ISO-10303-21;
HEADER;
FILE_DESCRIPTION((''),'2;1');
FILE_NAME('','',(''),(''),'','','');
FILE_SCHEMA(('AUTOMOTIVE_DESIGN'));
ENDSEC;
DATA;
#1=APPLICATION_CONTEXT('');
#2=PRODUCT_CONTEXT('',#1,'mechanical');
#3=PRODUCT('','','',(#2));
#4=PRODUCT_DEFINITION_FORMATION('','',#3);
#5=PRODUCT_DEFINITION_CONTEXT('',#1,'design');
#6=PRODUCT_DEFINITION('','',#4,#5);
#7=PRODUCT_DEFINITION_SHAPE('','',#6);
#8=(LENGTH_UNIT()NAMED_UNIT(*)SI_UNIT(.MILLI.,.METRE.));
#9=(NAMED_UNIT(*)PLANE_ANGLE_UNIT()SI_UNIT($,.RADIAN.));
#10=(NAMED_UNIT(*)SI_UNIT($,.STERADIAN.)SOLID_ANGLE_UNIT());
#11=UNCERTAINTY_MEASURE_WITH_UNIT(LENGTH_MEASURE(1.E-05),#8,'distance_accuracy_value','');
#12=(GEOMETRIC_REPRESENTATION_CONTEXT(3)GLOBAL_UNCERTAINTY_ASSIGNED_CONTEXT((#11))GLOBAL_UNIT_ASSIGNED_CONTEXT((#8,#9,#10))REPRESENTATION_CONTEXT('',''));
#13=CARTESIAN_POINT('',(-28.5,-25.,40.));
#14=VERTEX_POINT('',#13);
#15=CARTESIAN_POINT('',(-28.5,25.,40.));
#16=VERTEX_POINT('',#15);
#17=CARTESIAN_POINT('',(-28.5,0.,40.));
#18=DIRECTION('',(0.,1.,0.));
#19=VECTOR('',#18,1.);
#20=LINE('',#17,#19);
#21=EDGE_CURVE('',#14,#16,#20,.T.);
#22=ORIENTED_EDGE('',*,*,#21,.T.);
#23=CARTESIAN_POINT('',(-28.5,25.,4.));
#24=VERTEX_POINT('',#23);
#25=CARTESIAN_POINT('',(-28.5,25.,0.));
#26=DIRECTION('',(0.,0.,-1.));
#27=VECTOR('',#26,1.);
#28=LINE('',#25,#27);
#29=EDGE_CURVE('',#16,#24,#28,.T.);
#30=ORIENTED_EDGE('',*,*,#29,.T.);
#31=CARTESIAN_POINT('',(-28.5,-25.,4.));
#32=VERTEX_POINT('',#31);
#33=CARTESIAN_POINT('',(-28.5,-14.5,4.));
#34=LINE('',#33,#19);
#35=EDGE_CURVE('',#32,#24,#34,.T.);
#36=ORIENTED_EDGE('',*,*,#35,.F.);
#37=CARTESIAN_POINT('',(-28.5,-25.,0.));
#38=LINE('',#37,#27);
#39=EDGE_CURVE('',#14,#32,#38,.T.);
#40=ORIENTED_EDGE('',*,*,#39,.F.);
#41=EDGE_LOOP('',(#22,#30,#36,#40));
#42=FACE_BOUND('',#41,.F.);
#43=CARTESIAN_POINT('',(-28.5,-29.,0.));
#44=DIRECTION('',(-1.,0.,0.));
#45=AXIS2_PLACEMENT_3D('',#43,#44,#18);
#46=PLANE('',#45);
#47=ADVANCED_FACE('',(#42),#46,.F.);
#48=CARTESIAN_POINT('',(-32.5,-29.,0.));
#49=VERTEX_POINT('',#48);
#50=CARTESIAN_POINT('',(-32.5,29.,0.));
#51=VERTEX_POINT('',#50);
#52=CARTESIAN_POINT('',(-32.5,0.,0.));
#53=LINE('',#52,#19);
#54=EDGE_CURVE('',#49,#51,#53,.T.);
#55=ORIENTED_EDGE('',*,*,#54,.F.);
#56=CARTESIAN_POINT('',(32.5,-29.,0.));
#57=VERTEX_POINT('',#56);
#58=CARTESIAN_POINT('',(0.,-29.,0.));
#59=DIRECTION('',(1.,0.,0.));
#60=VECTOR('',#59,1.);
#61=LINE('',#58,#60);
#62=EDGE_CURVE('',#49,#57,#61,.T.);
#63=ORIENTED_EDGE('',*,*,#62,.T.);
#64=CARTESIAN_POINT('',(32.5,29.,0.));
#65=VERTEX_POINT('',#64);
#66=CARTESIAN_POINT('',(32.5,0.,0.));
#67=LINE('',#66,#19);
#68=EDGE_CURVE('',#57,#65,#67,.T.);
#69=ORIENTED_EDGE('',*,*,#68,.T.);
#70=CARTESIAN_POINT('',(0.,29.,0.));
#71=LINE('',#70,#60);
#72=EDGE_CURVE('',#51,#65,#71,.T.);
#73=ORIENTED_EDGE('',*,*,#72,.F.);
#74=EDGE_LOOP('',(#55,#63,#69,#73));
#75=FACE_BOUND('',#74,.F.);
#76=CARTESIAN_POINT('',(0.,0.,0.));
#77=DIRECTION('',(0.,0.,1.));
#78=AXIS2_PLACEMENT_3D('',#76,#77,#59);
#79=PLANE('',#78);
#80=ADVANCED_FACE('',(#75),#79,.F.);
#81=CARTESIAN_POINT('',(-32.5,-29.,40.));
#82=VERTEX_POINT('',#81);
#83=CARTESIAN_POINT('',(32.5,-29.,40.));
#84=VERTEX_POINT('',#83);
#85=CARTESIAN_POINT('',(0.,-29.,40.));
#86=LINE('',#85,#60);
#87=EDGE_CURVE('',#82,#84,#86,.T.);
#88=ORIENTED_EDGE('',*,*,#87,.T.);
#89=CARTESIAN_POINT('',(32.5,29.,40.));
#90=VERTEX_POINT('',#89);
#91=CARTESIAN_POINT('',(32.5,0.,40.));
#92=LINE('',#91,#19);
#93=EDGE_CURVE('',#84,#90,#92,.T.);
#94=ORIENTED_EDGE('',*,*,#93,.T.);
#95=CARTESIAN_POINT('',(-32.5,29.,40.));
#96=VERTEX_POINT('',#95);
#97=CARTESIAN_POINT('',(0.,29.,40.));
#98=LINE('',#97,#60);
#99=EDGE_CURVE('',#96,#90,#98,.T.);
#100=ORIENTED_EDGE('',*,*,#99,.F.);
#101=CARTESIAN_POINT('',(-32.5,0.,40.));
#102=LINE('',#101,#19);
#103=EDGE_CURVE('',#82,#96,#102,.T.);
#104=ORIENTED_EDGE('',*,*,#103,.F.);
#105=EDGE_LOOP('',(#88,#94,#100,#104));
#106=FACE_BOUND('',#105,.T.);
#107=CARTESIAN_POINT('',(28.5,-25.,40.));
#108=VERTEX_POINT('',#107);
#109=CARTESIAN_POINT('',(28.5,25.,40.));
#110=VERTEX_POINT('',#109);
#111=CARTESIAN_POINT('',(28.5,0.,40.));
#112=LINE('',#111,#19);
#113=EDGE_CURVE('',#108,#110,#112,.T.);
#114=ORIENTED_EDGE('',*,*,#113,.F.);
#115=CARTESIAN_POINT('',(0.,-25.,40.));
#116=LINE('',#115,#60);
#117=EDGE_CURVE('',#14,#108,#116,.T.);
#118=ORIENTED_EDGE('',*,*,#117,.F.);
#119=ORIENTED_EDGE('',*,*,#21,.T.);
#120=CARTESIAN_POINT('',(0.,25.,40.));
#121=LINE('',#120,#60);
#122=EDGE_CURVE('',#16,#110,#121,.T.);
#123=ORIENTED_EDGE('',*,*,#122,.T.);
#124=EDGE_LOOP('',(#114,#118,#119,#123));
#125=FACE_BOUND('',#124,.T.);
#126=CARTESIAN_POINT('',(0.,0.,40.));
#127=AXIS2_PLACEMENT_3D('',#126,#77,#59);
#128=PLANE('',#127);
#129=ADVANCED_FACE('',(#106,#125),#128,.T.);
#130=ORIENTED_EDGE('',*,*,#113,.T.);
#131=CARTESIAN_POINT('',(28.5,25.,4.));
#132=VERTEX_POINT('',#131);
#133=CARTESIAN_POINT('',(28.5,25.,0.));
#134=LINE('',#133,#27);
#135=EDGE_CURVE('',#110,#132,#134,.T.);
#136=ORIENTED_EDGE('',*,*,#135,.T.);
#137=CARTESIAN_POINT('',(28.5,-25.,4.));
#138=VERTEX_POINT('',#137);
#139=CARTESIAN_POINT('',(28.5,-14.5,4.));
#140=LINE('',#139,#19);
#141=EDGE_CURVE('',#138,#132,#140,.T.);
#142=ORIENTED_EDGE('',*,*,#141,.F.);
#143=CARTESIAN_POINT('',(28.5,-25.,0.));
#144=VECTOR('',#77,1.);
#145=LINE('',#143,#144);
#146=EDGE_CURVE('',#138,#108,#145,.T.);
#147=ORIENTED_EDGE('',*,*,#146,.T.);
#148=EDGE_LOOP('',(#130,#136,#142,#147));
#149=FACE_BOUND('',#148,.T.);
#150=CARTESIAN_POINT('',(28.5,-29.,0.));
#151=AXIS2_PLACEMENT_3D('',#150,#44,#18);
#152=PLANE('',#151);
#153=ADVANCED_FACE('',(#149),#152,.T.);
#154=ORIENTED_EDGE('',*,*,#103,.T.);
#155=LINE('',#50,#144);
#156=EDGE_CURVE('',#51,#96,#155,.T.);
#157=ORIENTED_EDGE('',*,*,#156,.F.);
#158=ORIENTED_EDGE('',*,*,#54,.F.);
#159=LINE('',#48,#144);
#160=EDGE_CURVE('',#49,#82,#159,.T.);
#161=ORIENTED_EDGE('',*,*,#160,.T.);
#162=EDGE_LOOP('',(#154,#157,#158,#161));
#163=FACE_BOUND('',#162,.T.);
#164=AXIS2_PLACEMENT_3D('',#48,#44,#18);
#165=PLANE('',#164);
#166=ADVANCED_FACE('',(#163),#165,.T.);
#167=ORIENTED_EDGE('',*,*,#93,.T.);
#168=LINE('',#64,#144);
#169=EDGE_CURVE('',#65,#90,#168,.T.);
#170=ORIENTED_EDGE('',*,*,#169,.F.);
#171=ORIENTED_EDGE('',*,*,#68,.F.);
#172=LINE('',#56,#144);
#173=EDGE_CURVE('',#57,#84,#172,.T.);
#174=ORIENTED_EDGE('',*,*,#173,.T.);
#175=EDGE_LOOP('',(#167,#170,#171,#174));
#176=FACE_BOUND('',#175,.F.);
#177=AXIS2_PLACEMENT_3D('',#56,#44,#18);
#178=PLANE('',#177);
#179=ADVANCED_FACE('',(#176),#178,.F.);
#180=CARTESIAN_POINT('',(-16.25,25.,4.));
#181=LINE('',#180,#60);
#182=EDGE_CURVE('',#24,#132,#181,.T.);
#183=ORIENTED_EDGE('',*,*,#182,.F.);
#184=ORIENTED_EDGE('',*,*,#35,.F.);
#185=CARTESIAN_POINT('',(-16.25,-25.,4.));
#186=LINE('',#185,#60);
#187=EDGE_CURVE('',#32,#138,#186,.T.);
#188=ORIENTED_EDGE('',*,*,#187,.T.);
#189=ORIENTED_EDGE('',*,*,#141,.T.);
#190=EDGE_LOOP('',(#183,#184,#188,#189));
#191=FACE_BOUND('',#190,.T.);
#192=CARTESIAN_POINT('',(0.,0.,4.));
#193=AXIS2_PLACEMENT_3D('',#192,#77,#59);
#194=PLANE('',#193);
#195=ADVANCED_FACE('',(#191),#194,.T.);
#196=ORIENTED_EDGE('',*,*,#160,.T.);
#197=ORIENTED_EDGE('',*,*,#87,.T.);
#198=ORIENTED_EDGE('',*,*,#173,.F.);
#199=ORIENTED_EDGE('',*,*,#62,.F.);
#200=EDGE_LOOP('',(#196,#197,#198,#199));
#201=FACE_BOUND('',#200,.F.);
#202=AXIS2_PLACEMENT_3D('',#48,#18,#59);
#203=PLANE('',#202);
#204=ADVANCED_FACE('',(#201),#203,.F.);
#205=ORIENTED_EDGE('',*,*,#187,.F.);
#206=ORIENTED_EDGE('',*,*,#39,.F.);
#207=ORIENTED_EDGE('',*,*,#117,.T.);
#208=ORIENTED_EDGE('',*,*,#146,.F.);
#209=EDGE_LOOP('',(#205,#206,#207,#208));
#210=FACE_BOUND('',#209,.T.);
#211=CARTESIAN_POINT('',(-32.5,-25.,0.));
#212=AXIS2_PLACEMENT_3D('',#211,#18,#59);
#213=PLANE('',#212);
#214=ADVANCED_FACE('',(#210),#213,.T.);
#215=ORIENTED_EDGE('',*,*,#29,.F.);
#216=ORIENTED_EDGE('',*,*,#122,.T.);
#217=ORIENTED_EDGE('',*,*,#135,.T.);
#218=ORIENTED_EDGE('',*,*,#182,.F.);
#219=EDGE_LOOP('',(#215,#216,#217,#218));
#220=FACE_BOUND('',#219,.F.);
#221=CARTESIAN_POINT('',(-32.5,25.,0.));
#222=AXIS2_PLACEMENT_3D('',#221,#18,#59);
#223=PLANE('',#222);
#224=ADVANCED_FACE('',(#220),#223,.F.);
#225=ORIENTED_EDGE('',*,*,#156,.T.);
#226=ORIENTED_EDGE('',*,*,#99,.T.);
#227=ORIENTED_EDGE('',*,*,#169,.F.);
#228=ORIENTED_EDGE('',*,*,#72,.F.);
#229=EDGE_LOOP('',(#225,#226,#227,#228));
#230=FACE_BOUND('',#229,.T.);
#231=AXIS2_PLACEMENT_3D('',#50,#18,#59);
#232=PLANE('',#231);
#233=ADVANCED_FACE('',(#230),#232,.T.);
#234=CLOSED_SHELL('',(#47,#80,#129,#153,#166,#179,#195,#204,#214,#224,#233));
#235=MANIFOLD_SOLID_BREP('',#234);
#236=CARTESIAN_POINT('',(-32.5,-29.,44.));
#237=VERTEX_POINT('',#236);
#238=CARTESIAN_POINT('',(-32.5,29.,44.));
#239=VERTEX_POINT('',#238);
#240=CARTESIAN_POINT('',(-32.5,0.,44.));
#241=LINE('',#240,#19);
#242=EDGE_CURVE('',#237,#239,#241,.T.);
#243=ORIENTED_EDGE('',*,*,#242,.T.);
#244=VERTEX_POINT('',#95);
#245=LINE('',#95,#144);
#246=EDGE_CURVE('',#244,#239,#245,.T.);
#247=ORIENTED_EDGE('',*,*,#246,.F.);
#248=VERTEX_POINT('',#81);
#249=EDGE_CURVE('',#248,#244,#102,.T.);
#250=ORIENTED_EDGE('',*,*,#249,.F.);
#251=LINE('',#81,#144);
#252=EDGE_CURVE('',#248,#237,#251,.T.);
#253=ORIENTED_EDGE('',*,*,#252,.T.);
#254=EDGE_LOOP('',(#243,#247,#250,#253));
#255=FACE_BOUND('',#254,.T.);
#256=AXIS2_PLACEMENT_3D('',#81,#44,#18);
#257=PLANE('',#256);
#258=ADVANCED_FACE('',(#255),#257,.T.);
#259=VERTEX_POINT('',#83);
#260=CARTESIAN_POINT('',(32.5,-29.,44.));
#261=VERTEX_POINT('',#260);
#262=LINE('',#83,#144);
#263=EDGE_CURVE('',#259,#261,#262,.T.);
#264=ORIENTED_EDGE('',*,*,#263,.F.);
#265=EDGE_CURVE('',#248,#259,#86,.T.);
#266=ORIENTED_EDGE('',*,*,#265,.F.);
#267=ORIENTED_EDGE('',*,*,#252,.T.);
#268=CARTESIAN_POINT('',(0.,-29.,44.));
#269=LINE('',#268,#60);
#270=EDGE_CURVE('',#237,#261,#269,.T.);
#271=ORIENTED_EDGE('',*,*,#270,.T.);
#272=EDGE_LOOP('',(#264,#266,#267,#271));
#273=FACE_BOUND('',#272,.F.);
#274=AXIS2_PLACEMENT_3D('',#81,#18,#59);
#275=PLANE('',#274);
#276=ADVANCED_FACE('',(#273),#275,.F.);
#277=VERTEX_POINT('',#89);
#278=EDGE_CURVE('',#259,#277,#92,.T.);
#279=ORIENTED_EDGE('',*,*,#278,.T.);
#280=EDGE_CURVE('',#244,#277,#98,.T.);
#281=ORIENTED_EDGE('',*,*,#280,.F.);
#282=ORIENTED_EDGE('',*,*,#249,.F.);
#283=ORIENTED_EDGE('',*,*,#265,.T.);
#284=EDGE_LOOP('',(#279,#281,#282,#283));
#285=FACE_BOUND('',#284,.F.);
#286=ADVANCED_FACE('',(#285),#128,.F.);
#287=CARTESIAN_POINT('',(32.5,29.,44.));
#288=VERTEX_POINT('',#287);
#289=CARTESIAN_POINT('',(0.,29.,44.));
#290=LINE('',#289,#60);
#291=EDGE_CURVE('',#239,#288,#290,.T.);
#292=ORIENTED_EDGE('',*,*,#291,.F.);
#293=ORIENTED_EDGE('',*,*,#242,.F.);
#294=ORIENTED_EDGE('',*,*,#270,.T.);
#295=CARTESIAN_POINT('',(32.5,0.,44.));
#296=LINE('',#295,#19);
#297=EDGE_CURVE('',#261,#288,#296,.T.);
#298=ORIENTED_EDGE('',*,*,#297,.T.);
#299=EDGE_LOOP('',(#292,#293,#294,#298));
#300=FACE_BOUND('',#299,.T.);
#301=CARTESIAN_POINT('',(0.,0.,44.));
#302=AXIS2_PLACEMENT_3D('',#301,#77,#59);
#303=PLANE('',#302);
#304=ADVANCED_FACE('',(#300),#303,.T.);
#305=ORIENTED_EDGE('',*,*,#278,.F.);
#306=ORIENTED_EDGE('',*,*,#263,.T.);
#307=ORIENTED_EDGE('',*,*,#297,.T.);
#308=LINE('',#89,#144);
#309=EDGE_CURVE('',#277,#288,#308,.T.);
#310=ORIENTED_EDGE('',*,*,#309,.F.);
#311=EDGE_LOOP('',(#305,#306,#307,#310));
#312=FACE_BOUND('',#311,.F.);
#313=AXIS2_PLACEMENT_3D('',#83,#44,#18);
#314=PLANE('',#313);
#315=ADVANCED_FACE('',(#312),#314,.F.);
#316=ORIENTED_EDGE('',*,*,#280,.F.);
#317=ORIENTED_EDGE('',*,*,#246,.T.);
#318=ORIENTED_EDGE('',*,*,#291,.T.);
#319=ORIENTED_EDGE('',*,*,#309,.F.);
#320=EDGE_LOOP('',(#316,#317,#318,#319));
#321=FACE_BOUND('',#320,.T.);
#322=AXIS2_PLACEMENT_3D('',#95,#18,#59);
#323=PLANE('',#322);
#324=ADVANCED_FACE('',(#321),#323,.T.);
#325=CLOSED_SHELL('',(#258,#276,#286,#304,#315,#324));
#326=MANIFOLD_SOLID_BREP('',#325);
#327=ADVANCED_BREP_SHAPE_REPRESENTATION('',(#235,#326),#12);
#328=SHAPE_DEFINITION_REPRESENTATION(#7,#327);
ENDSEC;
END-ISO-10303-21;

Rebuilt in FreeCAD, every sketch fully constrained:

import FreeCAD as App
import Part
import Sketcher
from FreeCAD import Vector
Q = App.Units.Quantity


def faces_at(feature, points):
    """Names of the faces that lie closest to the given points."""
    faces = feature.Shape.Faces
    near = lambda p: min(range(len(faces)), key=lambda i: faces[i].distToShape(Part.Vertex(*p))[0])
    return sorted({f"Face{near(p) + 1}" for p in points})


def add_polygon(sketch, points):
    """Adds a closed chain of lines whose ends are joined by coincident constraints."""
    first, n = sketch.GeometryCount, len(points)
    for a, b in zip(points, points[1:] + points[:1]):
        sketch.addGeometry(Part.LineSegment(App.Vector(*a, 0), App.Vector(*b, 0)), False)
    for i in range(n):
        sketch.addConstraint(Sketcher.Constraint("Coincident", first + i, 2, first + (i + 1) % n, 1))

doc = App.newDocument("Part")
body = doc.addObject("PartDesign::Body", "Body")

# Sketch on XY plane
sketch1 = body.newObject("Sketcher::SketchObject", "Sketch")
sketch1.AttachmentSupport = (doc.getObject("XY_Plane"), [""])
sketch1.MapMode = "FlatFace"
add_polygon(sketch1, [(-32, 29), (-32, -29), (32, -29), (32, 29)])  # lines 0-3
sketch1.addConstraint([
    Sketcher.Constraint("Vertical", 0),
    Sketcher.Constraint("Horizontal", 1),
    Sketcher.Constraint("Vertical", 2),
    Sketcher.Constraint("Horizontal", 3),
    Sketcher.Constraint("Symmetric", 0, 2, 2, 2, -1, 1),
    Sketcher.Constraint("DistanceX", 1, 1, 1, 2, Q("65 mm")),
    Sketcher.Constraint("DistanceY", 0, 2, 0, 1, Q("58 mm")),
])
pad1 = body.newObject("PartDesign::Pad", "Pad")
pad1.Profile = sketch1
pad1.Length = 40
doc.recompute()

thickness = body.newObject("PartDesign::Thickness", "Thickness")
thickness.Base = (pad1, faces_at(pad1, [(0, 0, 40)]))
thickness.Value = 4
thickness.Reversed = True
thickness.Join = "Arc"
body2 = doc.addObject("PartDesign::Body", "Body001")

# Sketch on XY plane
sketch2 = body2.newObject("Sketcher::SketchObject", "Sketch001")
sketch2.AttachmentSupport = (doc.getObject("XY_Plane001"), [""])
sketch2.MapMode = "FlatFace"
sketch2.AttachmentOffset = App.Placement(Vector(0, 0, 40), App.Rotation())
add_polygon(sketch2, [(-32, 29), (-32, -29), (32, -29), (32, 29)])  # lines 0-3
sketch2.addConstraint([
    Sketcher.Constraint("Vertical", 0),
    Sketcher.Constraint("Horizontal", 1),
    Sketcher.Constraint("Vertical", 2),
    Sketcher.Constraint("Horizontal", 3),
    Sketcher.Constraint("Symmetric", 0, 2, 2, 2, -1, 1),
    Sketcher.Constraint("DistanceX", 1, 1, 1, 2, Q("65 mm")),
    Sketcher.Constraint("DistanceY", 0, 2, 0, 1, Q("58 mm")),
])
pad2 = body2.newObject("PartDesign::Pad", "Pad001")
pad2.Profile = sketch2
pad2.Length = 4

doc.recompute()
